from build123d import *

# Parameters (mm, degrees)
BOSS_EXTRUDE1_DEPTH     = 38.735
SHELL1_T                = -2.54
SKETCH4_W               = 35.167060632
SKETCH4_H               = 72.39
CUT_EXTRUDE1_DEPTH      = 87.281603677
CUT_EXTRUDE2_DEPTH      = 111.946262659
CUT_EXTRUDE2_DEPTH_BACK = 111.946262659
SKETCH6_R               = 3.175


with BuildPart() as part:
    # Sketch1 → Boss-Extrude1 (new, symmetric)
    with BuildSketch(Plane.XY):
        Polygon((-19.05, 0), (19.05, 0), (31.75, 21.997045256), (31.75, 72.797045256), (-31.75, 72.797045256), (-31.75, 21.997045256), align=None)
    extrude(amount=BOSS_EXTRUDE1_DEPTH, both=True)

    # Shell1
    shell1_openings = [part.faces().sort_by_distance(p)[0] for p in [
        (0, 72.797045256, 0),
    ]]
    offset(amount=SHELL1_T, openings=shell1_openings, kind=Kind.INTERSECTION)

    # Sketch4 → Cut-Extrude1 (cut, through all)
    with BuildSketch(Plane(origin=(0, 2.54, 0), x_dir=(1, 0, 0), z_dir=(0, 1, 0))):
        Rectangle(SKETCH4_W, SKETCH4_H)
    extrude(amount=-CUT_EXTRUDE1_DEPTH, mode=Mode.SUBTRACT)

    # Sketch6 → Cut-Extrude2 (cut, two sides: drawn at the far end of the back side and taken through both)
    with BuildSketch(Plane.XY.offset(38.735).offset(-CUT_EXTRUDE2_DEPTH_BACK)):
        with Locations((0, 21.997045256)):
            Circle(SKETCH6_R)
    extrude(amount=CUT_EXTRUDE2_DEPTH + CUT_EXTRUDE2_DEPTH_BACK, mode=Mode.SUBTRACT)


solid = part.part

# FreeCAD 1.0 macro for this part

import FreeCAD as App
import Part
import Sketcher
Q = App.Units.Quantity


def faces_at(feature, points):
    """Names of the faces that lie closest to the given points."""
    faces = feature.Shape.Faces
    near = lambda p: min(range(len(faces)), key=lambda i: faces[i].distToShape(Part.Vertex(*p))[0])
    return sorted({f"Face{near(p) + 1}" for p in points})


def add_polygon(sketch, points):
    """Adds a closed chain of lines whose ends are joined by coincident constraints."""
    first, n = sketch.GeometryCount, len(points)
    for a, b in zip(points, points[1:] + points[:1]):
        sketch.addGeometry(Part.LineSegment(App.Vector(*a, 0), App.Vector(*b, 0)), False)
    for i in range(n):
        sketch.addConstraint(Sketcher.Constraint("Coincident", first + i, 2, first + (i + 1) % n, 1))

doc = App.newDocument("Part")
params = doc.addObject("Spreadsheet::Sheet", "Params")
for row, (alias, value) in enumerate([
    ("sketch1_height", "2 in"),
    ("sketch1_length", "1 in"),
    ("sketch1_width", "1.5 in"),
    ("sketch1_width2", "2.5 in"),
    ("pad1_length", "3.05 in"),
    ("thickness_wall", "0.1 in"),
    ("sketch2_height", "2.85 in"),
    ("sketch3_diameter", "0.25 in"),
], start=1):
    params.set(f"A{row}", alias)
    params.set(f"B{row}", "=" + value)
    params.setAlias(f"B{row}", alias)

body = doc.addObject("PartDesign::Body", "Body")

sketch1 = body.newObject("Sketcher::SketchObject", "Sketch")
sketch1.AttachmentSupport = (doc.getObject("XY_Plane"), [""])
sketch1.MapMode = "FlatFace"
add_polygon(sketch1, [(-19, 0), (19, 0), (32, 22), (32, 73), (-32, 73), (-32, 22)])
sketch1.addConstraint([
    Sketcher.Constraint("Horizontal", 0),
    Sketcher.Constraint("Vertical", 2),
    Sketcher.Constraint("Horizontal", 3),
    Sketcher.Constraint("Vertical", 4),
    Sketcher.Constraint("Symmetric", 0, 2, 5, 2, -1, 1),
    Sketcher.Constraint("Symmetric", 1, 2, 4, 2, -2),
    Sketcher.Constraint("DistanceY", 2, 1, 2, 2, Q("2 in")),
    Sketcher.Constraint("Distance", 1, Q("1 in")),
    Sketcher.Constraint("DistanceX", 0, 1, 0, 2, Q("1.5 in")),
    Sketcher.Constraint("DistanceX", 3, 2, 3, 1, Q("2.5 in")),
])
sketch1.setExpression("Constraints[12]", "Params.sketch1_height")
sketch1.setExpression("Constraints[13]", "Params.sketch1_length")
sketch1.setExpression("Constraints[14]", "Params.sketch1_width")
sketch1.setExpression("Constraints[15]", "Params.sketch1_width2")
pad1 = body.newObject("PartDesign::Pad", "Pad")
pad1.Profile = sketch1
pad1.setExpression("Length", "Params.pad1_length")
pad1.Midplane = True
doc.recompute()

thickness = body.newObject("PartDesign::Thickness", "Thickness")
thickness.Base = (pad1, faces_at(pad1, [(0, 72.797, 0)]))
thickness.setExpression("Value", "Params.thickness_wall")
thickness.Reversed = True
thickness.Join = "Intersection"

sketch2 = body.newObject("Sketcher::SketchObject", "Sketch001")
sketch2.AttachmentSupport = (doc.getObject("XZ_Plane"), [""])
sketch2.MapMode = "FlatFace"
sketch2.AttachmentOffset = App.Placement(App.Vector(0, 0, -0.1 * 25.4), App.Rotation())
add_polygon(sketch2, [(-18, -36), (-18, 36), (18, 36), (18, -36)])
sketch2.addConstraint([
    Sketcher.Constraint("Vertical", 0),
    Sketcher.Constraint("Horizontal", 1),
    Sketcher.Constraint("Vertical", 2),
    Sketcher.Constraint("Horizontal", 3),
    Sketcher.Constraint("Symmetric", 0, 2, 2, 2, -1, 1),
    Sketcher.Constraint("DistanceY", 0, 1, 0, 2, Q("2.85 in")),
    Sketcher.Constraint("DistanceX", 1, 1, 1, 2, 35.167061),
])
sketch2.setExpression("Constraints[9]", "Params.sketch2_height")
pocket1 = body.newObject("PartDesign::Pocket", "Pocket")
pocket1.Profile = sketch2
pocket1.Type = "ThroughAll"
pocket1.Reversed = True

sketch3 = body.newObject("Sketcher::SketchObject", "Sketch002")
sketch3.AttachmentSupport = (doc.getObject("XY_Plane"), [""])
sketch3.MapMode = "FlatFace"
sketch3.AttachmentOffset = App.Placement(App.Vector(0, 0, 1.525 * 25.4), App.Rotation())
sketch3.addGeometry(Part.Circle(App.Vector(0, 22, 0), App.Vector(0, 0, 1), 3.2), False)
sketch3.addConstraint([
    Sketcher.Constraint("PointOnObject", 0, 3, -2),
    Sketcher.Constraint("Diameter", 0, Q("0.25 in")),
    Sketcher.Constraint("DistanceY", -1, 1, 0, 3, 21.997045),
])
sketch3.setExpression("Constraints[1]", "Params.sketch3_diameter")
pocket2 = body.newObject("PartDesign::Pocket", "Pocket001")
pocket2.Profile = sketch3
pocket2.Type = "ThroughAll"
pocket2.Midplane = True

doc.recompute()
